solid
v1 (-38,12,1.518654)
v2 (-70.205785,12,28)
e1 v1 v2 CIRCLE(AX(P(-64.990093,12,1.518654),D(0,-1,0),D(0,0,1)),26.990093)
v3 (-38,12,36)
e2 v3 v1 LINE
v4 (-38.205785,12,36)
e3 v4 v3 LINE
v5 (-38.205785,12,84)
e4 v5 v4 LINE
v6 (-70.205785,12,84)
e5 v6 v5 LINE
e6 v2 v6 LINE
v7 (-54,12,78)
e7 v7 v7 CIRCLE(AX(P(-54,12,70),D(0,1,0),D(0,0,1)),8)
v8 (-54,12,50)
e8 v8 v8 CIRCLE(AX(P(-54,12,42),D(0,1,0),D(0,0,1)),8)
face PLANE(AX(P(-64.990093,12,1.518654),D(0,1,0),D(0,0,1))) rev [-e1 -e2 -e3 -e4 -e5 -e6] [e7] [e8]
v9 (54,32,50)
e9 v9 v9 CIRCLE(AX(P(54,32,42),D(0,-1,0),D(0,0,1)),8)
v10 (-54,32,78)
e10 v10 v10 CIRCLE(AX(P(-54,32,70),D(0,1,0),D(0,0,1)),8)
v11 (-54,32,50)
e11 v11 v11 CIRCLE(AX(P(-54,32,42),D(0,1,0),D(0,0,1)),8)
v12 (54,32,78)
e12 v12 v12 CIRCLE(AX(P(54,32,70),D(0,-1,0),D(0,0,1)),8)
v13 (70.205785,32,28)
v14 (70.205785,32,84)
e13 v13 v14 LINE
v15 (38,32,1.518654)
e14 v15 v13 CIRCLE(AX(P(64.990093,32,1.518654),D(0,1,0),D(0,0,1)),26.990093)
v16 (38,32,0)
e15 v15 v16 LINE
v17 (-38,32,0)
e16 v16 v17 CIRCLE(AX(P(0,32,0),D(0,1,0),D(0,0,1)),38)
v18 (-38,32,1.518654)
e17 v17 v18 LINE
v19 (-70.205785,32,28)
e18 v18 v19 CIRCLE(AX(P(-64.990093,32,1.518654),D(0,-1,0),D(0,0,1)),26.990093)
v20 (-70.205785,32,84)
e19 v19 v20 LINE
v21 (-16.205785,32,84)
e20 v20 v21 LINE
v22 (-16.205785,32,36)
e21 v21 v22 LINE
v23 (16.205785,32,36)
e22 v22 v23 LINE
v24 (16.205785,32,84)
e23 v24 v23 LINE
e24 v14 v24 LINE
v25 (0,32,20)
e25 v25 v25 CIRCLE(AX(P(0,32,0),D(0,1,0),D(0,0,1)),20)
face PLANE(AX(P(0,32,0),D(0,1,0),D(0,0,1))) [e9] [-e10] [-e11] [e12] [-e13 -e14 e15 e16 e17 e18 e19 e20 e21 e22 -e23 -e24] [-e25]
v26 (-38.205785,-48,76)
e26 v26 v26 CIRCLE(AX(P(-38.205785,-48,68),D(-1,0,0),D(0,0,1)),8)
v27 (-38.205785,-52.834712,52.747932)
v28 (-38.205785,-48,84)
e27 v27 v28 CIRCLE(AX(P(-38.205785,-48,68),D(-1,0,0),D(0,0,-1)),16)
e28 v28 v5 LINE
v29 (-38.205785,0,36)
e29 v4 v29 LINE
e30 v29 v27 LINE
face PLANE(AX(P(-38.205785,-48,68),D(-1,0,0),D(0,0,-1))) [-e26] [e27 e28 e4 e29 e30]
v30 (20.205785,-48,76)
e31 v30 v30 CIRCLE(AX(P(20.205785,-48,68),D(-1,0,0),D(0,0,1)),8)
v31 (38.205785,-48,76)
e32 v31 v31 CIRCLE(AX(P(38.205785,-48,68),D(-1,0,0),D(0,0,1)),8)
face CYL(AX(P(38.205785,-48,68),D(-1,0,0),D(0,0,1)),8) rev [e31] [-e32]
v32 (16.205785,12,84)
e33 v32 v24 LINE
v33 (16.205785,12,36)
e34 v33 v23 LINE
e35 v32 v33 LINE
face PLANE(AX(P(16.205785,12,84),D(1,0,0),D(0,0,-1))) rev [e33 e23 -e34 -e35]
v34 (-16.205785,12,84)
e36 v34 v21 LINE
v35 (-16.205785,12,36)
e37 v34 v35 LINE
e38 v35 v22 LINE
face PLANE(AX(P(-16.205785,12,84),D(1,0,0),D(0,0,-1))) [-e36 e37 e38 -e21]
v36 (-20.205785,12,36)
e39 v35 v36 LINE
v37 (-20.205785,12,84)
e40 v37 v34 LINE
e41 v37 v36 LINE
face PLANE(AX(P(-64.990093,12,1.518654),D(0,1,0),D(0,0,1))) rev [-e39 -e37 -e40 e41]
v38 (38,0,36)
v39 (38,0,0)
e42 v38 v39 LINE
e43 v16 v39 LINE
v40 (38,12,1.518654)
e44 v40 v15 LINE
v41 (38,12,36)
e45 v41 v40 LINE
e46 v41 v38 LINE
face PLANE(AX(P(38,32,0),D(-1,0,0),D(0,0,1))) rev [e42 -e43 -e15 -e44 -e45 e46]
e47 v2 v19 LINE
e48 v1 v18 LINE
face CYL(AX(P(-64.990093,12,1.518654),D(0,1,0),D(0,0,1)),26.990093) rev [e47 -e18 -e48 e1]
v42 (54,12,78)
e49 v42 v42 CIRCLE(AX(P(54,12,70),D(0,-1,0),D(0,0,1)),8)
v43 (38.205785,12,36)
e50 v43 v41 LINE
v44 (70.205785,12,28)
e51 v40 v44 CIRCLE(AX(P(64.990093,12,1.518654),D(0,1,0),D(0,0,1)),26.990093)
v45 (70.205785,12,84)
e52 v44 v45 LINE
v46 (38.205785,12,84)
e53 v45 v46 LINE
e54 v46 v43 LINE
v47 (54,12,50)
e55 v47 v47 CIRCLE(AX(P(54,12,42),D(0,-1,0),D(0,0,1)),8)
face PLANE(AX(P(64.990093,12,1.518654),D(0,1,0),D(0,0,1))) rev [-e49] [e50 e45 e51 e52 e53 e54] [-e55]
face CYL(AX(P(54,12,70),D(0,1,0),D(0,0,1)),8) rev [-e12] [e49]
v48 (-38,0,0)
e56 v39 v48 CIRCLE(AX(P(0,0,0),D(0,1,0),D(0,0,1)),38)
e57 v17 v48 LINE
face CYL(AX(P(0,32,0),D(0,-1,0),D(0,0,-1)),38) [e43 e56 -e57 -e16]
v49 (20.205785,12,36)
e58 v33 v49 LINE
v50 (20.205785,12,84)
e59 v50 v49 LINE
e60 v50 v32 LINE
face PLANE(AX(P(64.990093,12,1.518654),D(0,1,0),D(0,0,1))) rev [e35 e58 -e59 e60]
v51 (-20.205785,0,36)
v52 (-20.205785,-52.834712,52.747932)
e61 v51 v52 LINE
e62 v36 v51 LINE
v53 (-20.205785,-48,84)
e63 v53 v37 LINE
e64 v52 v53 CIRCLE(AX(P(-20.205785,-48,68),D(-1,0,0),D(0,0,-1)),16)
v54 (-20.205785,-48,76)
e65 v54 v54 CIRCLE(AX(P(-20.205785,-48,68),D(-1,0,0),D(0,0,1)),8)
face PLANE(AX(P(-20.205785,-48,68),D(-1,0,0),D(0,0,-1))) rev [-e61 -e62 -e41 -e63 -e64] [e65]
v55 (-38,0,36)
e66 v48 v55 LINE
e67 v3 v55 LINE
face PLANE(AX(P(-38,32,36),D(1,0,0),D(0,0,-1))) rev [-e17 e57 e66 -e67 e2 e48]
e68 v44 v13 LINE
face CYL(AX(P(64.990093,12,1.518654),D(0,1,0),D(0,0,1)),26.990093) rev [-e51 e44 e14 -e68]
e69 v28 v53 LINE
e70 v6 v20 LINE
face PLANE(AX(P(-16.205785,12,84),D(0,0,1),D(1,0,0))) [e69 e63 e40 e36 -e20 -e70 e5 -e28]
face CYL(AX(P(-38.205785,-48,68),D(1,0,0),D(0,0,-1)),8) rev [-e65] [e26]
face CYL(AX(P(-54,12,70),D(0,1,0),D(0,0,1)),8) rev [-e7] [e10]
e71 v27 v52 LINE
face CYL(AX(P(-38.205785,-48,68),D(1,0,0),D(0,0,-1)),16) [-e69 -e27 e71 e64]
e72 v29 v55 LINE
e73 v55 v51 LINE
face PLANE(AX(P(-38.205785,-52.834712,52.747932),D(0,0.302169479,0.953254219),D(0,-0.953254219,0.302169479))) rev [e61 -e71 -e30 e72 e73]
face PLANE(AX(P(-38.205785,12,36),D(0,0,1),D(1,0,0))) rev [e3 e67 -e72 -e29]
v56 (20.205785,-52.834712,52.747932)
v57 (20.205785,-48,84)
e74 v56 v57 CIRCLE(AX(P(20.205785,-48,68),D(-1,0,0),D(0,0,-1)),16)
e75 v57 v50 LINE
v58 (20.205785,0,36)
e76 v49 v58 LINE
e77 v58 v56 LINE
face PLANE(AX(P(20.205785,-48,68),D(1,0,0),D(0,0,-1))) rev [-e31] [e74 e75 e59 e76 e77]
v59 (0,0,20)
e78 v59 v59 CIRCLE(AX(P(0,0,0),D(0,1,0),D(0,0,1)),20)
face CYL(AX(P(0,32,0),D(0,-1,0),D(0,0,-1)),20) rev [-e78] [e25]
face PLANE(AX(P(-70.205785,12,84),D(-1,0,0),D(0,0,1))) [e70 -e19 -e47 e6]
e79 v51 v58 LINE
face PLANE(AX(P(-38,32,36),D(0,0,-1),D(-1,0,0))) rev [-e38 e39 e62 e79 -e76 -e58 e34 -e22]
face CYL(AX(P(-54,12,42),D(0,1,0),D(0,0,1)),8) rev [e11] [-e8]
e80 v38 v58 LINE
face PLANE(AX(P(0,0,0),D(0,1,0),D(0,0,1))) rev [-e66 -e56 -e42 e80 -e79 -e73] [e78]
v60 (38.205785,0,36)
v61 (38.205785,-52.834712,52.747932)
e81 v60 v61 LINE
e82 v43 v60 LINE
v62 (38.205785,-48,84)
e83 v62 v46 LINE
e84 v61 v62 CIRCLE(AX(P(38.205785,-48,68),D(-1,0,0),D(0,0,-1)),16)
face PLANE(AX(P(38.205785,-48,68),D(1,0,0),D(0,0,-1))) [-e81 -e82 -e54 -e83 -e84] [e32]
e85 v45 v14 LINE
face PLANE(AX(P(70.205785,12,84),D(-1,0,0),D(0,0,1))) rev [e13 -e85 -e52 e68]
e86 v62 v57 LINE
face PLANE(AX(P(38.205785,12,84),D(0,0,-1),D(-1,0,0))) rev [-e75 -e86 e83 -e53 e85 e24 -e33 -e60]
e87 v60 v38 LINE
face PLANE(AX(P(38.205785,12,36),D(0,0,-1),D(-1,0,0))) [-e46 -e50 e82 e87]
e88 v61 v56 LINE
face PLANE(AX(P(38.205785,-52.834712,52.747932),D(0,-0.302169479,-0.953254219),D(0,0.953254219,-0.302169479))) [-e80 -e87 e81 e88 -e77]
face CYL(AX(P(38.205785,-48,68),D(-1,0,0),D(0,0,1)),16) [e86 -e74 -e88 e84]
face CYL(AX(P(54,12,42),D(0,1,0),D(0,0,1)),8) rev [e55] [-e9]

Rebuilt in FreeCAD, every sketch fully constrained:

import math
import FreeCAD as App
import Part
import Sketcher
Q = App.Units.Quantity

doc = App.newDocument("Part")
body = doc.addObject("PartDesign::Body", "Body")

# Sketch on XZ plane
sketch1 = doc.addObject("Sketcher::SketchObject", "Sketch")
body.addObject(sketch1)
sketch1.AttachmentSupport = (doc.XZ_Plane, [""])
sketch1.MapMode = "FlatFace"
sketch1.addGeometry(Part.LineSegment(App.Vector(-38, 36, 0), App.Vector(38, 36, 0)), False)
sketch1.addGeometry(Part.LineSegment(App.Vector(38, 36, 0), App.Vector(38, 0, 0)), False)
sketch1.addGeometry(Part.ArcOfCircle(Part.Circle(App.Vector(0, 0, 0), App.Vector(0, 0, 1), 38), math.radians(180), math.radians(360)), False)
sketch1.addGeometry(Part.LineSegment(App.Vector(-38, 0, 0), App.Vector(-38, 36, 0)), False)
sketch1.addGeometry(Part.Circle(App.Vector(0, 0, 0), App.Vector(0, 0, 1), 20), False)
sketch1.addConstraint(Sketcher.Constraint("Coincident", 0, 2, 1, 1))
sketch1.addConstraint(Sketcher.Constraint("Tangent", 1, 2, 2, 2))
sketch1.addConstraint(Sketcher.Constraint("Tangent", 2, 1, 3, 1))
sketch1.addConstraint(Sketcher.Constraint("Coincident", 3, 2, 0, 1))
sketch1.addConstraint(Sketcher.Constraint("Horizontal", 0))
sketch1.addConstraint(Sketcher.Constraint("Vertical", 1))
sketch1.addConstraint(Sketcher.Constraint("Vertical", 3))
sketch1.addConstraint(Sketcher.Constraint("Coincident", 2, 3, -1, 1))
sketch1.addConstraint(Sketcher.Constraint("Coincident", 4, 3, -1, 1))
sketch1.addConstraint(Sketcher.Constraint("Diameter", 4, Q("40 mm")))
sketch1.addConstraint(Sketcher.Constraint("Radius", 2, Q("38 mm")))
sketch1.addConstraint(Sketcher.Constraint("DistanceY", 1, 2, 1, 1, Q("36 mm")))
pad1 = doc.addObject("PartDesign::Pad", "Pad")
body.addObject(pad1)
pad1.Profile = sketch1
pad1.Length = 32
pad1.Reversed = True

# Sketch on XZ plane
sketch2 = doc.addObject("Sketcher::SketchObject", "Sketch001")
body.addObject(sketch2)
sketch2.AttachmentSupport = (doc.XZ_Plane, [""])
sketch2.MapMode = "FlatFace"
sketch2.AttachmentOffset = App.Placement(App.Vector(0, 0, -32), App.Rotation())
sketch2.addGeometry(Part.LineSegment(App.Vector(-70.205785, 84, 0), App.Vector(-16.205785, 84, 0)), False)
sketch2.addGeometry(Part.LineSegment(App.Vector(-16.205785, 84, 0), App.Vector(-16.205785, 36, 0)), False)
sketch2.addGeometry(Part.LineSegment(App.Vector(-16.205785, 36, 0), App.Vector(-38, 36, 0)), False)
sketch2.addGeometry(Part.LineSegment(App.Vector(-38, 36, 0), App.Vector(-38, 1.518654, 0)), False)
sketch2.addGeometry(Part.ArcOfCircle(Part.Circle(App.Vector(-64.990093, 1.518654, 0), App.Vector(0, 0, 1), 26.990093), math.radians(0), math.radians(101.1422)), False)
sketch2.addGeometry(Part.LineSegment(App.Vector(-70.205785, 28, 0), App.Vector(-70.205785, 84, 0)), False)
sketch2.addGeometry(Part.Circle(App.Vector(-54, 70, 0), App.Vector(0, 0, 1), 8), False)
sketch2.addGeometry(Part.Circle(App.Vector(-54, 42, 0), App.Vector(0, 0, 1), 8), False)
sketch2.addConstraint(Sketcher.Constraint("Coincident", 0, 2, 1, 1))
sketch2.addConstraint(Sketcher.Constraint("Coincident", 1, 2, 2, 1))
sketch2.addConstraint(Sketcher.Constraint("Coincident", 2, 2, 3, 1))
sketch2.addConstraint(Sketcher.Constraint("Tangent", 3, 2, 4, 1))
sketch2.addConstraint(Sketcher.Constraint("Coincident", 4, 2, 5, 1))
sketch2.addConstraint(Sketcher.Constraint("Coincident", 5, 2, 0, 1))
sketch2.addConstraint(Sketcher.Constraint("Horizontal", 0))
sketch2.addConstraint(Sketcher.Constraint("Vertical", 1))
sketch2.addConstraint(Sketcher.Constraint("Horizontal", 2))
sketch2.addConstraint(Sketcher.Constraint("Vertical", 3))
sketch2.addConstraint(Sketcher.Constraint("Vertical", 5))
sketch2.addConstraint(Sketcher.Constraint("Equal", 6, 7))
sketch2.addConstraint(Sketcher.Constraint("Vertical", 6, 3, 7, 3))
sketch2.addConstraint(Sketcher.Constraint("Diameter", 6, Q("16 mm")))
sketch2.addConstraint(Sketcher.Constraint("DistanceX", 0, 1, 0, 2, Q("54 mm")))
sketch2.addConstraint(Sketcher.Constraint("DistanceY", 1, 2, 1, 1, Q("48 mm")))
sketch2.addConstraint(Sketcher.Constraint("DistanceY", 5, 1, 5, 2, Q("56 mm")))
sketch2.addConstraint(Sketcher.Constraint("DistanceX", 6, 3, -1, 1, Q("54 mm")))
sketch2.addConstraint(Sketcher.Constraint("DistanceY", -1, 1, 6, 3, Q("70 mm")))
sketch2.addConstraint(Sketcher.Constraint("DistanceY", -1, 1, 7, 3, Q("42 mm")))
sketch2.addConstraint(Sketcher.Constraint("DistanceY", -1, 1, 0, 2, Q("84 mm")))
sketch2.addConstraint(Sketcher.Constraint("DistanceX", 2, 2, -1, 1, Q("38 mm")))
sketch2.addConstraint(Sketcher.Constraint("Radius", 4, Q("26.990093 mm")))
sketch2.addConstraint(Sketcher.Constraint("DistanceX", 2, 2, 2, 1, Q("21.794215 mm")))
pad2 = doc.addObject("PartDesign::Pad", "Pad001")
body.addObject(pad2)
pad2.Profile = sketch2
pad2.Length = 20
doc.recompute()

mirrored = doc.addObject("PartDesign::Mirrored", "Mirrored")
body.addObject(mirrored)
mirrored.Originals = [pad2]
mirrored.MirrorPlane = (doc.YZ_Plane, [""])
body.Tip = mirrored

# Sketch on YZ plane
sketch3 = doc.addObject("Sketcher::SketchObject", "Sketch002")
body.addObject(sketch3)
sketch3.AttachmentSupport = (doc.YZ_Plane, [""])
sketch3.MapMode = "FlatFace"
sketch3.AttachmentOffset = App.Placement(App.Vector(0, 0, 20.205785), App.Rotation())
sketch3.addGeometry(Part.LineSegment(App.Vector(12, 84, 0), App.Vector(12, 36, 0)), False)
sketch3.addGeometry(Part.LineSegment(App.Vector(12, 36, 0), App.Vector(0, 36, 0)), False)
sketch3.addGeometry(Part.LineSegment(App.Vector(0, 36, 0), App.Vector(-52.834712, 52.747932, 0)), False)
sketch3.addGeometry(Part.ArcOfCircle(Part.Circle(App.Vector(-48, 68, 0), App.Vector(0, 0, 1), 16), math.radians(90), math.radians(252.412046)), False)
sketch3.addGeometry(Part.LineSegment(App.Vector(-48, 84, 0), App.Vector(12, 84, 0)), False)
sketch3.addGeometry(Part.Circle(App.Vector(-48, 68, 0), App.Vector(0, 0, 1), 8), False)
sketch3.addConstraint(Sketcher.Constraint("Coincident", 0, 2, 1, 1))
sketch3.addConstraint(Sketcher.Constraint("Coincident", 1, 2, 2, 1))
sketch3.addConstraint(Sketcher.Constraint("Tangent", 2, 2, 3, 2))
sketch3.addConstraint(Sketcher.Constraint("Tangent", 3, 1, 4, 1))
sketch3.addConstraint(Sketcher.Constraint("Coincident", 4, 2, 0, 1))
sketch3.addConstraint(Sketcher.Constraint("Vertical", 0))
sketch3.addConstraint(Sketcher.Constraint("Horizontal", 1))
sketch3.addConstraint(Sketcher.Constraint("Horizontal", 4))
sketch3.addConstraint(Sketcher.Constraint("Coincident", 5, 3, 3, 3))
sketch3.addConstraint(Sketcher.Constraint("PointOnObject", 1, 2, -2))
sketch3.addConstraint(Sketcher.Constraint("Diameter", 5, Q("16 mm")))
sketch3.addConstraint(Sketcher.Constraint("Radius", 3, Q("16 mm")))
sketch3.addConstraint(Sketcher.Constraint("DistanceX", 1, 2, 1, 1, Q("12 mm")))
sketch3.addConstraint(Sketcher.Constraint("DistanceX", 4, 1, 4, 2, Q("60 mm")))
sketch3.addConstraint(Sketcher.Constraint("DistanceY", 0, 2, 0, 1, Q("48 mm")))
sketch3.addConstraint(Sketcher.Constraint("DistanceY", -1, 1, 3, 3, Q("68 mm")))
pad3 = doc.addObject("PartDesign::Pad", "Pad002")
body.addObject(pad3)
pad3.Profile = sketch3
pad3.Length = 18
doc.recompute()

mirrored2 = doc.addObject("PartDesign::Mirrored", "Mirrored001")
body.addObject(mirrored2)
mirrored2.Originals = [pad3]
mirrored2.MirrorPlane = (doc.YZ_Plane, [""])
body.Tip = mirrored2

doc.recompute()
